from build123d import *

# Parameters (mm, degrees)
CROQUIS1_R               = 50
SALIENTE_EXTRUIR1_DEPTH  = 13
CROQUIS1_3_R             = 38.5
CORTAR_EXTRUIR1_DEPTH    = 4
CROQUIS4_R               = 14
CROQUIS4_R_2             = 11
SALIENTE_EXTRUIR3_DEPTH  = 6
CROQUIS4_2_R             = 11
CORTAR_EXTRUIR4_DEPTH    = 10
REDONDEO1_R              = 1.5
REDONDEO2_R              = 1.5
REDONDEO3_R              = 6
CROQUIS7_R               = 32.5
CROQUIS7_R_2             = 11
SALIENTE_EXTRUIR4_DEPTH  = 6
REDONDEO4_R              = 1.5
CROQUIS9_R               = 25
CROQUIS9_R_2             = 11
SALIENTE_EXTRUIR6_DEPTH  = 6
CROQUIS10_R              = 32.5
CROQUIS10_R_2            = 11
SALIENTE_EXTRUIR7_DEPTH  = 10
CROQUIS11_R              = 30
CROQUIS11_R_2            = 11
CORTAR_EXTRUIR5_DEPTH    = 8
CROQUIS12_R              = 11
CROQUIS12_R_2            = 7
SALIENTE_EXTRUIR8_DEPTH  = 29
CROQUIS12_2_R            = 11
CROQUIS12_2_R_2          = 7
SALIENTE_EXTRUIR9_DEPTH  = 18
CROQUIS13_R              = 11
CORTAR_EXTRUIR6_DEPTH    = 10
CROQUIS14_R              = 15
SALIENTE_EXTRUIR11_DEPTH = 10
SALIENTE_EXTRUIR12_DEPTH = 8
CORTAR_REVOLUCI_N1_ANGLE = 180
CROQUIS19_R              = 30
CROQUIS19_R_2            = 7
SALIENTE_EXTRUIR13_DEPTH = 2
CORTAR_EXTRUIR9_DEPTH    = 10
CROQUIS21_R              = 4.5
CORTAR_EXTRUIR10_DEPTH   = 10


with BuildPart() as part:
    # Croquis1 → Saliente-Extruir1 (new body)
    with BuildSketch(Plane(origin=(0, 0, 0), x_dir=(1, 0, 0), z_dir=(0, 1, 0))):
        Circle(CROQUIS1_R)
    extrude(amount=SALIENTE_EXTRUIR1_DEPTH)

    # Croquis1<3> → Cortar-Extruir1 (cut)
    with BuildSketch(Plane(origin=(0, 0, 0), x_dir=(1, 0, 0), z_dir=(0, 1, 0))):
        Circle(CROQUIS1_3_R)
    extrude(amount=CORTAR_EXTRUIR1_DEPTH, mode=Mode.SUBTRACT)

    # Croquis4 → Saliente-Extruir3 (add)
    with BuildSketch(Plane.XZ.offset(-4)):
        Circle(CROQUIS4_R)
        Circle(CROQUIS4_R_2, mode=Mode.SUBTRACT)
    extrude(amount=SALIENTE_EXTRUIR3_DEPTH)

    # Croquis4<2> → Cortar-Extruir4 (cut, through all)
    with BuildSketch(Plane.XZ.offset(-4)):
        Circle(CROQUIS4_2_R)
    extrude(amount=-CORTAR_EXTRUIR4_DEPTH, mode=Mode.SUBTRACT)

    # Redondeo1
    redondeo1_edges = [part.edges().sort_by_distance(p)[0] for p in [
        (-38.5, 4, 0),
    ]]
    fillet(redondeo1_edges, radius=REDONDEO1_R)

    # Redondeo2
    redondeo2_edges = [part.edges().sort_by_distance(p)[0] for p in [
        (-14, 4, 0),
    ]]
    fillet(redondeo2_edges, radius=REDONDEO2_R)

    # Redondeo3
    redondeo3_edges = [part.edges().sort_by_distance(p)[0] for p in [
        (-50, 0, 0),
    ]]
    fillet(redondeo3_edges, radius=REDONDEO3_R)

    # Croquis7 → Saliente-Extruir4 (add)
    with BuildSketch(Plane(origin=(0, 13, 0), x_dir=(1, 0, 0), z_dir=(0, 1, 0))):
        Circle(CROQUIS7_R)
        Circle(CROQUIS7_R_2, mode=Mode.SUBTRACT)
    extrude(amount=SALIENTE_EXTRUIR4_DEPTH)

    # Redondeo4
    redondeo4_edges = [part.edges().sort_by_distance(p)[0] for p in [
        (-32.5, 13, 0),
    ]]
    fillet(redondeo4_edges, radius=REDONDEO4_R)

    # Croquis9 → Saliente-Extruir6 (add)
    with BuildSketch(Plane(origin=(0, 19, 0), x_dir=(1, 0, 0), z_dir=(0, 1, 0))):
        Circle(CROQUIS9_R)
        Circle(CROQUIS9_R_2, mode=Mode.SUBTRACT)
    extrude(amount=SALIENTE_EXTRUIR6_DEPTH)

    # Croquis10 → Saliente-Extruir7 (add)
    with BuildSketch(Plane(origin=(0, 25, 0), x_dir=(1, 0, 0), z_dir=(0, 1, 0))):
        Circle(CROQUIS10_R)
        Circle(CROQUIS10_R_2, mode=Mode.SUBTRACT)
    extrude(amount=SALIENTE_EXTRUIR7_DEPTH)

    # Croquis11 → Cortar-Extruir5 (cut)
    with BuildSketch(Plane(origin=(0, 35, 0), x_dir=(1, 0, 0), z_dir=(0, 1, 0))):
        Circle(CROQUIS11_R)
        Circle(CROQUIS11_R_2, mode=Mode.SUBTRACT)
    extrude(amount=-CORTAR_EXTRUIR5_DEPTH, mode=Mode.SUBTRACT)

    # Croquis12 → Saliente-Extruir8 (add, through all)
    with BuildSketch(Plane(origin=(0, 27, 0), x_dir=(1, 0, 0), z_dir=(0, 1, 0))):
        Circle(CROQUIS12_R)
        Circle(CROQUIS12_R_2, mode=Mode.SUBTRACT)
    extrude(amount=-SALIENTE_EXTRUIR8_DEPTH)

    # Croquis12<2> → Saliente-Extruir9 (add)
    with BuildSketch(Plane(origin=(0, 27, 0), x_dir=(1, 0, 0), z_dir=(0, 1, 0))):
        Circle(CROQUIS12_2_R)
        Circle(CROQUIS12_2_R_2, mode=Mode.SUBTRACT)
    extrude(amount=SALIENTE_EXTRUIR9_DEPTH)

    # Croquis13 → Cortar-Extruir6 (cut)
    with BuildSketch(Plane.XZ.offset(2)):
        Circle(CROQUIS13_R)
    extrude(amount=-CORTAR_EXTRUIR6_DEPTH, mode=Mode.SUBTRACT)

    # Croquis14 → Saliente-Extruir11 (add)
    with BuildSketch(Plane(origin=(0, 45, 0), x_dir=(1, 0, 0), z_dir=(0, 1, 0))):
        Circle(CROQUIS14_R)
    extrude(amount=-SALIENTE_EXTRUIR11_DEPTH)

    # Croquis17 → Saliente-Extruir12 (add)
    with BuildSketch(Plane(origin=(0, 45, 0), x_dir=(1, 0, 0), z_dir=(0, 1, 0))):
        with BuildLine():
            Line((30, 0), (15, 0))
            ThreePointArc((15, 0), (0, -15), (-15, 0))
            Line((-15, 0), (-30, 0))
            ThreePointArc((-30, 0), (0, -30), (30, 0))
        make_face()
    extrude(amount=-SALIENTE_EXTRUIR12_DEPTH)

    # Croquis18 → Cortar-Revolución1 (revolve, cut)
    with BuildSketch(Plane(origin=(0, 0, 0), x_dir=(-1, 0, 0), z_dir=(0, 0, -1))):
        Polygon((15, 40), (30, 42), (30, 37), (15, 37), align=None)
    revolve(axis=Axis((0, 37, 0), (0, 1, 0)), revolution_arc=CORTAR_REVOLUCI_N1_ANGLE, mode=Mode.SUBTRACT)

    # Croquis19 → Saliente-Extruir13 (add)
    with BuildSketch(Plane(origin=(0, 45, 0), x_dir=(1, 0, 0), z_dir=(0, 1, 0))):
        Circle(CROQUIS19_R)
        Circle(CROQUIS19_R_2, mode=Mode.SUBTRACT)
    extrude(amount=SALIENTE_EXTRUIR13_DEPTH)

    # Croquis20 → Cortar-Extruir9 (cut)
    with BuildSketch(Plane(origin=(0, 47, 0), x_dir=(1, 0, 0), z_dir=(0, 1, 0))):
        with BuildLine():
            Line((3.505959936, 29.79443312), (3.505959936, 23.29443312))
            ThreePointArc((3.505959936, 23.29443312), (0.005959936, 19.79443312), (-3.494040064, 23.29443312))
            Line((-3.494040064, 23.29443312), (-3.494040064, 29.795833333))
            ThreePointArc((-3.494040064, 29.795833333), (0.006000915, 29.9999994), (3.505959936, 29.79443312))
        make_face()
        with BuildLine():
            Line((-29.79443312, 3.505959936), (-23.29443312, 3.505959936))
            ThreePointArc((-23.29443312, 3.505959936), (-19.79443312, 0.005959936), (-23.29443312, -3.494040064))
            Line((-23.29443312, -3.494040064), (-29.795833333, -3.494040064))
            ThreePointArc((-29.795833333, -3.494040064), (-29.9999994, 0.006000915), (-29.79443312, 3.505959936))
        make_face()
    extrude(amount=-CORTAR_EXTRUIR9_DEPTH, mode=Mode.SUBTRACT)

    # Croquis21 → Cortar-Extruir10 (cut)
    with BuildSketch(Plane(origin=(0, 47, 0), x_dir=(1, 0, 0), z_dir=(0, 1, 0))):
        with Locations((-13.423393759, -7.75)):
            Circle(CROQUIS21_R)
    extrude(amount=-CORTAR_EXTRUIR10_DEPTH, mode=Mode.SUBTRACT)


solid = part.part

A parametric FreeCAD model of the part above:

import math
import FreeCAD as App
import Part
import Sketcher
Q = App.Units.Quantity


def edges_at(feature, points):
    """Names of the edges that pass closest to the given points."""
    edges = feature.Shape.Edges
    near = lambda p: min(range(len(edges)), key=lambda i: edges[i].distToShape(Part.Vertex(*p))[0])
    return sorted({f"Edge{near(p) + 1}" for p in points})

doc = App.newDocument("Part")
body = doc.addObject("PartDesign::Body", "Body")

# Sketch on XZ plane
sketch1 = body.newObject("Sketcher::SketchObject", "Sketch")
sketch1.AttachmentSupport = (doc.getObject("XZ_Plane"), [""])
sketch1.MapMode = "FlatFace"
sketch1.addGeometry(Part.Circle(App.Vector(0, 0, 0), App.Vector(0, 0, 1), 50), False)
sketch1.addConstraint(Sketcher.Constraint("Coincident", 0, 3, -1, 1))
sketch1.addConstraint(Sketcher.Constraint("Diameter", 0, Q("100 mm")))
pad1 = body.newObject("PartDesign::Pad", "Pad")
pad1.Profile = sketch1
pad1.Length = 13
pad1.Reversed = True

# Sketch on XZ plane
sketch2 = body.newObject("Sketcher::SketchObject", "Sketch001")
sketch2.AttachmentSupport = (doc.getObject("XZ_Plane"), [""])
sketch2.MapMode = "FlatFace"
sketch2.addGeometry(Part.Circle(App.Vector(0, 0, 0), App.Vector(0, 0, 1), 38.5), False)
sketch2.addConstraint(Sketcher.Constraint("Coincident", 0, 3, -1, 1))
sketch2.addConstraint(Sketcher.Constraint("Diameter", 0, Q("77 mm")))
pocket1 = body.newObject("PartDesign::Pocket", "Pocket")
pocket1.Profile = sketch2
pocket1.Length = 4

# Sketch on XZ plane
sketch3 = body.newObject("Sketcher::SketchObject", "Sketch002")
sketch3.AttachmentSupport = (doc.getObject("XZ_Plane"), [""])
sketch3.MapMode = "FlatFace"
sketch3.AttachmentOffset = App.Placement(App.Vector(0, 0, -4), App.Rotation())
sketch3.addGeometry(Part.Circle(App.Vector(0, 0, 0), App.Vector(0, 0, 1), 14), False)
sketch3.addGeometry(Part.Circle(App.Vector(0, 0, 0), App.Vector(0, 0, 1), 11), False)
sketch3.addConstraint(Sketcher.Constraint("Coincident", 0, 3, -1, 1))
sketch3.addConstraint(Sketcher.Constraint("Coincident", 1, 3, -1, 1))
sketch3.addConstraint(Sketcher.Constraint("Diameter", 0, Q("28 mm")))
sketch3.addConstraint(Sketcher.Constraint("Diameter", 1, Q("22 mm")))
pad2 = body.newObject("PartDesign::Pad", "Pad001")
pad2.Profile = sketch3
pad2.Length = 6

# Sketch on XZ plane
sketch4 = body.newObject("Sketcher::SketchObject", "Sketch003")
sketch4.AttachmentSupport = (doc.getObject("XZ_Plane"), [""])
sketch4.MapMode = "FlatFace"
sketch4.AttachmentOffset = App.Placement(App.Vector(0, 0, -4), App.Rotation())
sketch4.addGeometry(Part.Circle(App.Vector(0, 0, 0), App.Vector(0, 0, 1), 11), False)
sketch4.addConstraint(Sketcher.Constraint("Coincident", 0, 3, -1, 1))
sketch4.addConstraint(Sketcher.Constraint("Diameter", 0, Q("22 mm")))
pocket2 = body.newObject("PartDesign::Pocket", "Pocket001")
pocket2.Profile = sketch4
pocket2.Type = "ThroughAll"
doc.recompute()

fillet = body.newObject("PartDesign::Fillet", "Fillet")
fillet.Base = (pocket2, edges_at(pocket2, [(-38.5, 4, 0)]))
fillet.Radius = 1.5
doc.recompute()

fillet2 = body.newObject("PartDesign::Fillet", "Fillet001")
fillet2.Base = (fillet, edges_at(fillet, [(-14, 4, 0)]))
fillet2.Radius = 1.5
doc.recompute()

fillet3 = body.newObject("PartDesign::Fillet", "Fillet002")
fillet3.Base = (fillet2, edges_at(fillet2, [(-50, 0, 0)]))
fillet3.Radius = 6

# Sketch on XZ plane
sketch5 = body.newObject("Sketcher::SketchObject", "Sketch004")
sketch5.AttachmentSupport = (doc.getObject("XZ_Plane"), [""])
sketch5.MapMode = "FlatFace"
sketch5.AttachmentOffset = App.Placement(App.Vector(0, 0, -13), App.Rotation())
sketch5.addGeometry(Part.Circle(App.Vector(0, 0, 0), App.Vector(0, 0, 1), 32.5), False)
sketch5.addGeometry(Part.Circle(App.Vector(0, 0, 0), App.Vector(0, 0, 1), 11), False)
sketch5.addConstraint(Sketcher.Constraint("Coincident", 0, 3, -1, 1))
sketch5.addConstraint(Sketcher.Constraint("Coincident", 1, 3, -1, 1))
sketch5.addConstraint(Sketcher.Constraint("Diameter", 0, Q("65 mm")))
sketch5.addConstraint(Sketcher.Constraint("Diameter", 1, Q("22 mm")))
pad3 = body.newObject("PartDesign::Pad", "Pad002")
pad3.Profile = sketch5
pad3.Length = 6
pad3.Reversed = True
doc.recompute()

fillet4 = body.newObject("PartDesign::Fillet", "Fillet003")
fillet4.Base = (pad3, edges_at(pad3, [(-32.5, 13, 0)]))
fillet4.Radius = 1.5

# Sketch on XZ plane
sketch6 = body.newObject("Sketcher::SketchObject", "Sketch005")
sketch6.AttachmentSupport = (doc.getObject("XZ_Plane"), [""])
sketch6.MapMode = "FlatFace"
sketch6.AttachmentOffset = App.Placement(App.Vector(0, 0, -19), App.Rotation())
sketch6.addGeometry(Part.Circle(App.Vector(0, 0, 0), App.Vector(0, 0, 1), 25), False)
sketch6.addGeometry(Part.Circle(App.Vector(0, 0, 0), App.Vector(0, 0, 1), 11), False)
sketch6.addConstraint(Sketcher.Constraint("Coincident", 0, 3, -1, 1))
sketch6.addConstraint(Sketcher.Constraint("Coincident", 1, 3, -1, 1))
sketch6.addConstraint(Sketcher.Constraint("Diameter", 0, Q("50 mm")))
sketch6.addConstraint(Sketcher.Constraint("Diameter", 1, Q("22 mm")))
pad4 = body.newObject("PartDesign::Pad", "Pad003")
pad4.Profile = sketch6
pad4.Length = 6
pad4.Reversed = True

# Sketch on XZ plane
sketch7 = body.newObject("Sketcher::SketchObject", "Sketch006")
sketch7.AttachmentSupport = (doc.getObject("XZ_Plane"), [""])
sketch7.MapMode = "FlatFace"
sketch7.AttachmentOffset = App.Placement(App.Vector(0, 0, -25), App.Rotation())
sketch7.addGeometry(Part.Circle(App.Vector(0, 0, 0), App.Vector(0, 0, 1), 32.5), False)
sketch7.addGeometry(Part.Circle(App.Vector(0, 0, 0), App.Vector(0, 0, 1), 11), False)
sketch7.addConstraint(Sketcher.Constraint("Coincident", 0, 3, -1, 1))
sketch7.addConstraint(Sketcher.Constraint("Coincident", 1, 3, -1, 1))
sketch7.addConstraint(Sketcher.Constraint("Diameter", 0, Q("65 mm")))
sketch7.addConstraint(Sketcher.Constraint("Diameter", 1, Q("22 mm")))
pad5 = body.newObject("PartDesign::Pad", "Pad004")
pad5.Profile = sketch7
pad5.Length = 10
pad5.Reversed = True

# Sketch on XZ plane
sketch8 = body.newObject("Sketcher::SketchObject", "Sketch007")
sketch8.AttachmentSupport = (doc.getObject("XZ_Plane"), [""])
sketch8.MapMode = "FlatFace"
sketch8.AttachmentOffset = App.Placement(App.Vector(0, 0, -35), App.Rotation())
sketch8.addGeometry(Part.Circle(App.Vector(0, 0, 0), App.Vector(0, 0, 1), 30), False)
sketch8.addGeometry(Part.Circle(App.Vector(0, 0, 0), App.Vector(0, 0, 1), 11), False)
sketch8.addConstraint(Sketcher.Constraint("Coincident", 0, 3, -1, 1))
sketch8.addConstraint(Sketcher.Constraint("Coincident", 1, 3, -1, 1))
sketch8.addConstraint(Sketcher.Constraint("Diameter", 0, Q("60 mm")))
sketch8.addConstraint(Sketcher.Constraint("Diameter", 1, Q("22 mm")))
pocket3 = body.newObject("PartDesign::Pocket", "Pocket002")
pocket3.Profile = sketch8
pocket3.Length = 8
pocket3.Reversed = True

# Sketch on XZ plane
sketch9 = body.newObject("Sketcher::SketchObject", "Sketch008")
sketch9.AttachmentSupport = (doc.getObject("XZ_Plane"), [""])
sketch9.MapMode = "FlatFace"
sketch9.AttachmentOffset = App.Placement(App.Vector(0, 0, -27), App.Rotation())
sketch9.addGeometry(Part.Circle(App.Vector(0, 0, 0), App.Vector(0, 0, 1), 11), False)
sketch9.addGeometry(Part.Circle(App.Vector(0, 0, 0), App.Vector(0, 0, 1), 7), False)
sketch9.addConstraint(Sketcher.Constraint("Coincident", 0, 3, -1, 1))
sketch9.addConstraint(Sketcher.Constraint("Coincident", 1, 3, -1, 1))
sketch9.addConstraint(Sketcher.Constraint("Diameter", 0, Q("22 mm")))
sketch9.addConstraint(Sketcher.Constraint("Diameter", 1, Q("14 mm")))
pad6 = body.newObject("PartDesign::Pad", "Pad005")
pad6.Profile = sketch9
pad6.Length = 29

# Sketch on XZ plane
sketch10 = body.newObject("Sketcher::SketchObject", "Sketch009")
sketch10.AttachmentSupport = (doc.getObject("XZ_Plane"), [""])
sketch10.MapMode = "FlatFace"
sketch10.AttachmentOffset = App.Placement(App.Vector(0, 0, -27), App.Rotation())
sketch10.addGeometry(Part.Circle(App.Vector(0, 0, 0), App.Vector(0, 0, 1), 11), False)
sketch10.addGeometry(Part.Circle(App.Vector(0, 0, 0), App.Vector(0, 0, 1), 7), False)
sketch10.addConstraint(Sketcher.Constraint("Coincident", 0, 3, -1, 1))
sketch10.addConstraint(Sketcher.Constraint("Coincident", 1, 3, -1, 1))
sketch10.addConstraint(Sketcher.Constraint("Diameter", 0, Q("22 mm")))
sketch10.addConstraint(Sketcher.Constraint("Diameter", 1, Q("14 mm")))
pad7 = body.newObject("PartDesign::Pad", "Pad006")
pad7.Profile = sketch10
pad7.Length = 18
pad7.Reversed = True

# Sketch on XZ plane
sketch11 = body.newObject("Sketcher::SketchObject", "Sketch010")
sketch11.AttachmentSupport = (doc.getObject("XZ_Plane"), [""])
sketch11.MapMode = "FlatFace"
sketch11.AttachmentOffset = App.Placement(App.Vector(0, 0, 2), App.Rotation())
sketch11.addGeometry(Part.Circle(App.Vector(0, 0, 0), App.Vector(0, 0, 1), 11), False)
sketch11.addConstraint(Sketcher.Constraint("Coincident", 0, 3, -1, 1))
sketch11.addConstraint(Sketcher.Constraint("Diameter", 0, Q("22 mm")))
pocket4 = body.newObject("PartDesign::Pocket", "Pocket003")
pocket4.Profile = sketch11
pocket4.Length = 10

# Sketch on XZ plane
sketch12 = body.newObject("Sketcher::SketchObject", "Sketch011")
sketch12.AttachmentSupport = (doc.getObject("XZ_Plane"), [""])
sketch12.MapMode = "FlatFace"
sketch12.AttachmentOffset = App.Placement(App.Vector(0, 0, -45), App.Rotation())
sketch12.addGeometry(Part.Circle(App.Vector(0, 0, 0), App.Vector(0, 0, 1), 15), False)
sketch12.addConstraint(Sketcher.Constraint("Coincident", 0, 3, -1, 1))
sketch12.addConstraint(Sketcher.Constraint("Diameter", 0, Q("30 mm")))
pad8 = body.newObject("PartDesign::Pad", "Pad007")
pad8.Profile = sketch12
pad8.Length = 10

# Sketch on XZ plane
sketch13 = body.newObject("Sketcher::SketchObject", "Sketch012")
sketch13.AttachmentSupport = (doc.getObject("XZ_Plane"), [""])
sketch13.MapMode = "FlatFace"
sketch13.AttachmentOffset = App.Placement(App.Vector(0, 0, -45), App.Rotation())
sketch13.addGeometry(Part.LineSegment(App.Vector(30, 0, 0), App.Vector(15, 0, 0)), False)
sketch13.addGeometry(Part.ArcOfCircle(Part.Circle(App.Vector(0, 0, 0), App.Vector(0, 0, 1), 15), math.radians(0), math.radians(180)), False)
sketch13.addGeometry(Part.LineSegment(App.Vector(-15, 0, 0), App.Vector(-30, 0, 0)), False)
sketch13.addGeometry(Part.ArcOfCircle(Part.Circle(App.Vector(0, 0, 0), App.Vector(0, 0, 1), 30), math.radians(0), math.radians(180)), False)
sketch13.addConstraint(Sketcher.Constraint("Coincident", 0, 2, 1, 1))
sketch13.addConstraint(Sketcher.Constraint("Coincident", 1, 2, 2, 1))
sketch13.addConstraint(Sketcher.Constraint("Coincident", 2, 2, 3, 2))
sketch13.addConstraint(Sketcher.Constraint("Coincident", 3, 1, 0, 1))
sketch13.addConstraint(Sketcher.Constraint("Horizontal", 0))
sketch13.addConstraint(Sketcher.Constraint("Horizontal", 2))
sketch13.addConstraint(Sketcher.Constraint("Coincident", 1, 3, -1, 1))
sketch13.addConstraint(Sketcher.Constraint("Coincident", 3, 3, -1, 1))
sketch13.addConstraint(Sketcher.Constraint("PointOnObject", 0, 2, -1))
sketch13.addConstraint(Sketcher.Constraint("PointOnObject", 1, 2, -1))
sketch13.addConstraint(Sketcher.Constraint("Radius", 1, Q("15 mm")))
sketch13.addConstraint(Sketcher.Constraint("Radius", 3, Q("30 mm")))
pad9 = body.newObject("PartDesign::Pad", "Pad008")
pad9.Profile = sketch13
pad9.Length = 8

# Sketch on XY plane
sketch14 = body.newObject("Sketcher::SketchObject", "Sketch013")
sketch14.AttachmentSupport = (doc.getObject("XY_Plane"), [""])
sketch14.MapMode = "FlatFace"
sketch14.addGeometry(Part.LineSegment(App.Vector(-30, 42, 0), App.Vector(-15, 40, 0)), False)
sketch14.addGeometry(Part.LineSegment(App.Vector(-15, 40, 0), App.Vector(-15, 37, 0)), False)
sketch14.addGeometry(Part.LineSegment(App.Vector(-15, 37, 0), App.Vector(-30, 37, 0)), False)
sketch14.addGeometry(Part.LineSegment(App.Vector(-30, 37, 0), App.Vector(-30, 42, 0)), False)
sketch14.addConstraint(Sketcher.Constraint("Coincident", 0, 2, 1, 1))
sketch14.addConstraint(Sketcher.Constraint("Coincident", 1, 2, 2, 1))
sketch14.addConstraint(Sketcher.Constraint("Coincident", 2, 2, 3, 1))
sketch14.addConstraint(Sketcher.Constraint("Coincident", 3, 2, 0, 1))
sketch14.addConstraint(Sketcher.Constraint("Vertical", 1))
sketch14.addConstraint(Sketcher.Constraint("Horizontal", 2))
sketch14.addConstraint(Sketcher.Constraint("Vertical", 3))
sketch14.addConstraint(Sketcher.Constraint("DistanceX", 2, 2, 2, 1, Q("15 mm")))
sketch14.addConstraint(Sketcher.Constraint("DistanceY", 1, 2, 1, 1, Q("3 mm")))
sketch14.addConstraint(Sketcher.Constraint("DistanceY", 3, 1, 3, 2, Q("5 mm")))
sketch14.addConstraint(Sketcher.Constraint("DistanceX", 0, 2, -1, 1, Q("15 mm")))
sketch14.addConstraint(Sketcher.Constraint("DistanceY", -1, 1, 0, 2, Q("40 mm")))
groove = body.newObject("PartDesign::Groove", "Groove")
groove.Profile = sketch14
groove.ReferenceAxis = (sketch14, ["V_Axis"])
groove.Angle = 180

# Sketch on XZ plane
sketch15 = body.newObject("Sketcher::SketchObject", "Sketch014")
sketch15.AttachmentSupport = (doc.getObject("XZ_Plane"), [""])
sketch15.MapMode = "FlatFace"
sketch15.AttachmentOffset = App.Placement(App.Vector(0, 0, -45), App.Rotation())
sketch15.addGeometry(Part.Circle(App.Vector(0, 0, 0), App.Vector(0, 0, 1), 30), False)
sketch15.addGeometry(Part.Circle(App.Vector(0, 0, 0), App.Vector(0, 0, 1), 7), False)
sketch15.addConstraint(Sketcher.Constraint("Coincident", 0, 3, -1, 1))
sketch15.addConstraint(Sketcher.Constraint("Coincident", 1, 3, -1, 1))
sketch15.addConstraint(Sketcher.Constraint("Diameter", 0, Q("60 mm")))
sketch15.addConstraint(Sketcher.Constraint("Diameter", 1, Q("14 mm")))
pad10 = body.newObject("PartDesign::Pad", "Pad009")
pad10.Profile = sketch15
pad10.Length = 2
pad10.Reversed = True

# Sketch on XZ plane
sketch16 = body.newObject("Sketcher::SketchObject", "Sketch015")
sketch16.AttachmentSupport = (doc.getObject("XZ_Plane"), [""])
sketch16.MapMode = "FlatFace"
sketch16.AttachmentOffset = App.Placement(App.Vector(0, 0, -47), App.Rotation())
sketch16.addGeometry(Part.LineSegment(App.Vector(3.50596, -23.294433, 0), App.Vector(3.50596, -29.794433, 0)), False)
sketch16.addGeometry(Part.ArcOfCircle(Part.Circle(App.Vector(0, 0, 0), App.Vector(0, 0, 1), 30), math.radians(-96.688304), math.radians(-83.288774)), False)
sketch16.addGeometry(Part.LineSegment(App.Vector(-3.49404, -29.795833, 0), App.Vector(-3.49404, -23.294433, 0)), False)
sketch16.addGeometry(Part.ArcOfCircle(Part.Circle(App.Vector(0.00596, -23.294433, 0), App.Vector(0, 0, 1), 3.5), math.radians(0), math.radians(180)), False)
sketch16.addGeometry(Part.LineSegment(App.Vector(-23.294433, -3.50596, 0), App.Vector(-29.794433, -3.50596, 0)), False)
sketch16.addGeometry(Part.ArcOfCircle(Part.Circle(App.Vector(0, 0, 0), App.Vector(0, 0, 1), 30), math.radians(173.311696), math.radians(186.711226)), False)
sketch16.addGeometry(Part.LineSegment(App.Vector(-29.795833, 3.49404, 0), App.Vector(-23.294433, 3.49404, 0)), False)
sketch16.addGeometry(Part.ArcOfCircle(Part.Circle(App.Vector(-23.294433, -0.00596, 0), App.Vector(0, 0, 1), 3.5), math.radians(-90), math.radians(90)), False)
sketch16.addConstraint(Sketcher.Constraint("Coincident", 0, 2, 1, 2))
sketch16.addConstraint(Sketcher.Constraint("Coincident", 1, 1, 2, 1))
sketch16.addConstraint(Sketcher.Constraint("Tangent", 2, 2, 3, 2))
sketch16.addConstraint(Sketcher.Constraint("Tangent", 3, 1, 0, 1))
sketch16.addConstraint(Sketcher.Constraint("Coincident", 4, 2, 5, 2))
sketch16.addConstraint(Sketcher.Constraint("Coincident", 5, 1, 6, 1))
sketch16.addConstraint(Sketcher.Constraint("Tangent", 6, 2, 7, 2))
sketch16.addConstraint(Sketcher.Constraint("Tangent", 7, 1, 4, 1))
sketch16.addConstraint(Sketcher.Constraint("Vertical", 0))
sketch16.addConstraint(Sketcher.Constraint("Vertical", 2))
sketch16.addConstraint(Sketcher.Constraint("Horizontal", 4))
sketch16.addConstraint(Sketcher.Constraint("Horizontal", 6))
sketch16.addConstraint(Sketcher.Constraint("Coincident", 1, 3, -1, 1))
sketch16.addConstraint(Sketcher.Constraint("Coincident", 5, 3, -1, 1))
sketch16.addConstraint(Sketcher.Constraint("Equal", 1, 5))
sketch16.addConstraint(Sketcher.Constraint("Equal", 3, 7))
sketch16.addConstraint(Sketcher.Constraint("Equal", 4, 0))
sketch16.addConstraint(Sketcher.Constraint("Equal", 6, 2))
sketch16.addConstraint(Sketcher.Constraint("Radius", 1, Q("30 mm")))
sketch16.addConstraint(Sketcher.Constraint("Radius", 3, Q("3.5 mm")))
sketch16.addConstraint(Sketcher.Constraint("DistanceX", 4, 2, 4, 1, Q("6.5 mm")))
sketch16.addConstraint(Sketcher.Constraint("DistanceX", 6, 1, 6, 2, Q("6.5014 mm")))
pocket5 = body.newObject("PartDesign::Pocket", "Pocket004")
pocket5.Profile = sketch16
pocket5.Length = 10
pocket5.Reversed = True

# Sketch on XZ plane
sketch17 = body.newObject("Sketcher::SketchObject", "Sketch016")
sketch17.AttachmentSupport = (doc.getObject("XZ_Plane"), [""])
sketch17.MapMode = "FlatFace"
sketch17.AttachmentOffset = App.Placement(App.Vector(0, 0, -47), App.Rotation())
sketch17.addGeometry(Part.Circle(App.Vector(-13.423394, 7.75, 0), App.Vector(0, 0, 1), 4.5), False)
sketch17.addConstraint(Sketcher.Constraint("Diameter", 0, Q("9 mm")))
sketch17.addConstraint(Sketcher.Constraint("DistanceY", -1, 1, 0, 3, Q("7.75 mm")))
sketch17.addConstraint(Sketcher.Constraint("DistanceX", 0, 3, -1, 1, Q("13.423394 mm")))
pocket6 = body.newObject("PartDesign::Pocket", "Pocket005")
pocket6.Profile = sketch17
pocket6.Length = 10
pocket6.Reversed = True

doc.recompute()
